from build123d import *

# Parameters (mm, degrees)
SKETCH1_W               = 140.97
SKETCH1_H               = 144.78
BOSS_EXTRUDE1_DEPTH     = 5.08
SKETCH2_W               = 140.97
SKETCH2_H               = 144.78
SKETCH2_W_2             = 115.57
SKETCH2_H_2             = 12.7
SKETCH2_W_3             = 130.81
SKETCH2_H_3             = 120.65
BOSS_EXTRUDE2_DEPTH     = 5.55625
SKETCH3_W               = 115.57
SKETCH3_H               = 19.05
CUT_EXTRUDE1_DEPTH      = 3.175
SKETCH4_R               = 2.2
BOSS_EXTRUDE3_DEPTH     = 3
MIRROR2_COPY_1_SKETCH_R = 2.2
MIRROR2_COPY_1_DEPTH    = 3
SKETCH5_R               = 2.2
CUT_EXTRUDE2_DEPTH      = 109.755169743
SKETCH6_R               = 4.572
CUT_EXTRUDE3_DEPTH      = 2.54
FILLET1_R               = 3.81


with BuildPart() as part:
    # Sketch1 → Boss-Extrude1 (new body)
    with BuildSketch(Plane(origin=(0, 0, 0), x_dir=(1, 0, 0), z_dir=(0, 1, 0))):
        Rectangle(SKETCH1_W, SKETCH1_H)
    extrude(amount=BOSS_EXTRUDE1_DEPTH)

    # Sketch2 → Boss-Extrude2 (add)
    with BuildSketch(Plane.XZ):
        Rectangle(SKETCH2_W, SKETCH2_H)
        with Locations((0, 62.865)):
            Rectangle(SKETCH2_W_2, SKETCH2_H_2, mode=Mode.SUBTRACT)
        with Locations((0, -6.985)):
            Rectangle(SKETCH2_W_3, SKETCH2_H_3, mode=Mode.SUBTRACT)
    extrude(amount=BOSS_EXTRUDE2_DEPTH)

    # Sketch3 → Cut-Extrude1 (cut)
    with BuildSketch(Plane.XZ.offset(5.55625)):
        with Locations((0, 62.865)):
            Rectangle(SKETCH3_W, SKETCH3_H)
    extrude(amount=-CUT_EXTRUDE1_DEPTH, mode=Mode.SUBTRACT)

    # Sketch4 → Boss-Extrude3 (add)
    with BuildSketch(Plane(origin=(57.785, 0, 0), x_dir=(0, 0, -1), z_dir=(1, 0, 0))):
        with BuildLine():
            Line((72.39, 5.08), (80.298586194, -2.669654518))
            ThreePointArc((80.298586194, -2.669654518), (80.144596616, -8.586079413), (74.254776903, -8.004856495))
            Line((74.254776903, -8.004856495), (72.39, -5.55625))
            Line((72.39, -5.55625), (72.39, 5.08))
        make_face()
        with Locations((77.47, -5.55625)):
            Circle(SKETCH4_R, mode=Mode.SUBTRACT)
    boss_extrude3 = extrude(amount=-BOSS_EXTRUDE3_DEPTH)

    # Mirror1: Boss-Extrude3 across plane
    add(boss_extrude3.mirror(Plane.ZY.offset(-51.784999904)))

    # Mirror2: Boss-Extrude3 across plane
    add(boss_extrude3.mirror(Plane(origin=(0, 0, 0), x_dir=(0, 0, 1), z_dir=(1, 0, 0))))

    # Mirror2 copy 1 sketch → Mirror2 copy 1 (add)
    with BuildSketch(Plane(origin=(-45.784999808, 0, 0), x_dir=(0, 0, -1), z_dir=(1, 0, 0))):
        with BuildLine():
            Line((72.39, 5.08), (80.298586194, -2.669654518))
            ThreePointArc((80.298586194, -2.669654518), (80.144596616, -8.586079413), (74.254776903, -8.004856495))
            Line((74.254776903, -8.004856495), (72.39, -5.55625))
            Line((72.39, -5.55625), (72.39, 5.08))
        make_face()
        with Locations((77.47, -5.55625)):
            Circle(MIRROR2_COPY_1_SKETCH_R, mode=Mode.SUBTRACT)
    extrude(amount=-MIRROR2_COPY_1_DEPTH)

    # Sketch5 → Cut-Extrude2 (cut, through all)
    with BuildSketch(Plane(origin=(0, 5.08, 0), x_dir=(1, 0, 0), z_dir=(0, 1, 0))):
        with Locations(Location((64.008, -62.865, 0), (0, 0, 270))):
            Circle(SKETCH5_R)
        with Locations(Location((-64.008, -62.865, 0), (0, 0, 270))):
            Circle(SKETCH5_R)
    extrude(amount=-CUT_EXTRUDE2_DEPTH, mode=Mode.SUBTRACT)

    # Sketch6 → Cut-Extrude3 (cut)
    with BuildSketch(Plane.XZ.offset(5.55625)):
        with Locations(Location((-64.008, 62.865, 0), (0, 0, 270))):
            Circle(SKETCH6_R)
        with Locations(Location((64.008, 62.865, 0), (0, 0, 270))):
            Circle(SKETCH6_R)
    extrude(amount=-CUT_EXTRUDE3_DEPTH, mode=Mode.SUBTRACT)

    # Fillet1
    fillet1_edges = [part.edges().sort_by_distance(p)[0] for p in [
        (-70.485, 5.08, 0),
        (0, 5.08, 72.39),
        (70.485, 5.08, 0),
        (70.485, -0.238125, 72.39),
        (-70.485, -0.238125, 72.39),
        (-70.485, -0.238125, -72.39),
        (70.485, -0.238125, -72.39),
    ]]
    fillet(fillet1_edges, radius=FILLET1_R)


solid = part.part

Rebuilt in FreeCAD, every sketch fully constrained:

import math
import FreeCAD as App
import Part
import Sketcher

V = App.Vector
Q = App.Units.Quantity


def edges_at(feature, points):
    """Names of the edges that pass closest to the given points."""
    edges = feature.Shape.Edges
    near = lambda p: min(range(len(edges)), key=lambda i: edges[i].distToShape(Part.Vertex(*p))[0])
    return sorted({f"Edge{near(p) + 1}" for p in points})


def add_polygon(sketch, points):
    """Adds a closed chain of lines whose ends are joined by coincident constraints."""
    first, n = sketch.GeometryCount, len(points)
    for a, b in zip(points, points[1:] + points[:1]):
        sketch.addGeometry(Part.LineSegment(App.Vector(*a, 0), App.Vector(*b, 0)), False)
    for i in range(n):
        sketch.addConstraint(Sketcher.Constraint("Coincident", first + i, 2, first + (i + 1) % n, 1))

doc = App.newDocument("Part")
body = doc.addObject("PartDesign::Body", "Body")

# Sketch on XZ plane
sketch1 = doc.addObject("Sketcher::SketchObject", "Sketch")
body.addObject(sketch1)
sketch1.AttachmentSupport = (doc.XZ_Plane, [""])
sketch1.MapMode = "FlatFace"
add_polygon(sketch1, [(-70.485, -72.39), (-70.485, 72.39), (70.485, 72.39), (70.485, -72.39)])  # lines 0-3
sketch1.addConstraint(Sketcher.Constraint("Vertical", 0))
sketch1.addConstraint(Sketcher.Constraint("Horizontal", 1))
sketch1.addConstraint(Sketcher.Constraint("Vertical", 2))
sketch1.addConstraint(Sketcher.Constraint("Horizontal", 3))
sketch1.addConstraint(Sketcher.Constraint("Symmetric", 0, 2, 2, 2, -1, 1))
sketch1.addConstraint(Sketcher.Constraint("DistanceY", 0, 1, 0, 2, Q("5.7 in")))
sketch1.addConstraint(Sketcher.Constraint("DistanceX", 1, 1, 1, 2, Q("5.55 in")))
pad1 = doc.addObject("PartDesign::Pad", "Pad")
body.addObject(pad1)
pad1.Profile = sketch1
pad1.Length = Q("0.2 in")
pad1.Reversed = True

# Sketch on XZ plane
sketch2 = doc.addObject("Sketcher::SketchObject", "Sketch001")
body.addObject(sketch2)
sketch2.AttachmentSupport = (doc.XZ_Plane, [""])
sketch2.MapMode = "FlatFace"
add_polygon(sketch2, [(-70.485, 72.39), (-70.485, -72.39), (70.485, -72.39), (70.485, 72.39)])  # lines 0-3
add_polygon(sketch2, [(65.405, -67.31), (-65.405, -67.31), (-65.405, 53.34), (65.405, 53.34)])  # lines 4-7
add_polygon(sketch2, [(57.785, 56.515), (-57.785, 56.515), (-57.785, 69.215), (57.785, 69.215)])  # lines 8-11
sketch2.addConstraint(Sketcher.Constraint("Vertical", 0))
sketch2.addConstraint(Sketcher.Constraint("Horizontal", 1))
sketch2.addConstraint(Sketcher.Constraint("Vertical", 2))
sketch2.addConstraint(Sketcher.Constraint("Horizontal", 3))
sketch2.addConstraint(Sketcher.Constraint("Horizontal", 4))
sketch2.addConstraint(Sketcher.Constraint("Vertical", 5))
sketch2.addConstraint(Sketcher.Constraint("Horizontal", 6))
sketch2.addConstraint(Sketcher.Constraint("Vertical", 7))
sketch2.addConstraint(Sketcher.Constraint("Horizontal", 8))
sketch2.addConstraint(Sketcher.Constraint("Vertical", 9))
sketch2.addConstraint(Sketcher.Constraint("Horizontal", 10))
sketch2.addConstraint(Sketcher.Constraint("Vertical", 11))
sketch2.addConstraint(Sketcher.Constraint("Symmetric", 0, 2, 2, 2, -1, 1))
sketch2.addConstraint(Sketcher.Constraint("DistanceY", 0, 2, 0, 1, Q("5.7 in")))
sketch2.addConstraint(Sketcher.Constraint("DistanceY", 9, 1, 9, 2, Q("0.5 in")))
sketch2.addConstraint(Sketcher.Constraint("DistanceX", 1, 1, 1, 2, Q("5.55 in")))
sketch2.addConstraint(Sketcher.Constraint("DistanceX", 4, 2, 4, 1, Q("5.15 in")))
sketch2.addConstraint(Sketcher.Constraint("DistanceX", 8, 2, 8, 1, Q("4.55 in")))
sketch2.addConstraint(Sketcher.Constraint("DistanceY", 5, 1, 5, 2, Q("4.75 in")))
sketch2.addConstraint(Sketcher.Constraint("DistanceY", -1, 1, 5, 2, Q("2.1 in")))
sketch2.addConstraint(Sketcher.Constraint("DistanceX", 0, 2, 4, 2, Q("0.2 in")))
sketch2.addConstraint(Sketcher.Constraint("DistanceX", 5, 2, 8, 2, Q("0.3 in")))
sketch2.addConstraint(Sketcher.Constraint("DistanceY", -1, 1, 8, 2, Q("2.225 in")))
pad2 = doc.addObject("PartDesign::Pad", "Pad001")
body.addObject(pad2)
pad2.Profile = sketch2
pad2.Length = Q("0.21875 in")

# Sketch on XZ plane
sketch3 = doc.addObject("Sketcher::SketchObject", "Sketch002")
body.addObject(sketch3)
sketch3.AttachmentSupport = (doc.XZ_Plane, [""])
sketch3.MapMode = "FlatFace"
sketch3.AttachmentOffset = App.Placement(V(0, 0, 0.21875 * 25.4), App.Rotation())
add_polygon(sketch3, [(-57.785, 72.39), (-57.785, 53.34), (57.785, 53.34), (57.785, 72.39)])  # lines 0-3
sketch3.addConstraint(Sketcher.Constraint("Vertical", 0))
sketch3.addConstraint(Sketcher.Constraint("Horizontal", 1))
sketch3.addConstraint(Sketcher.Constraint("Vertical", 2))
sketch3.addConstraint(Sketcher.Constraint("Horizontal", 3))
sketch3.addConstraint(Sketcher.Constraint("DistanceX", 1, 1, 1, 2, Q("4.55 in")))
sketch3.addConstraint(Sketcher.Constraint("DistanceY", 0, 2, 0, 1, Q("0.75 in")))
sketch3.addConstraint(Sketcher.Constraint("DistanceY", -1, 1, 0, 2, Q("2.1 in")))
sketch3.addConstraint(Sketcher.Constraint("DistanceX", 0, 2, -1, 1, Q("2.275 in")))
pocket1 = doc.addObject("PartDesign::Pocket", "Pocket")
body.addObject(pocket1)
pocket1.Profile = sketch3
pocket1.Length = Q("0.125 in")

# Sketch on YZ plane
sketch4 = doc.addObject("Sketcher::SketchObject", "Sketch003")
body.addObject(sketch4)
sketch4.AttachmentSupport = (doc.YZ_Plane, [""])
sketch4.MapMode = "FlatFace"
sketch4.AttachmentOffset = App.Placement(V(0, 0, 2.275 * 25.4), App.Rotation())
sketch4.addGeometry(Part.LineSegment(V(-2.669655, -80.298586, 0), V(5.08, -72.39, 0)), False)
sketch4.addGeometry(Part.LineSegment(V(5.08, -72.39, 0), V(-5.55625, -72.39, 0)), False)
sketch4.addGeometry(Part.LineSegment(V(-5.55625, -72.39, 0), V(-8.004856, -74.254777, 0)), False)
sketch4.addGeometry(Part.ArcOfCircle(Part.Circle(V(-5.55625, -77.47, 0), V(0, 0, 1), 4.041452), math.radians(127.291687), math.radians(315.581534)), False)
sketch4.addGeometry(Part.Circle(V(-5.55625, -77.47, 0), V(0, 0, 1), 2.2), False)
sketch4.addConstraint(Sketcher.Constraint("Coincident", 0, 2, 1, 1))
sketch4.addConstraint(Sketcher.Constraint("Coincident", 1, 2, 2, 1))
sketch4.addConstraint(Sketcher.Constraint("Tangent", 2, 2, 3, 1))
sketch4.addConstraint(Sketcher.Constraint("Tangent", 3, 2, 0, 1))
sketch4.addConstraint(Sketcher.Constraint("Horizontal", 1))
sketch4.addConstraint(Sketcher.Constraint("Coincident", 4, 3, 3, 3))
sketch4.addConstraint(Sketcher.Constraint("Vertical", 4, 3, 1, 2))
sketch4.addConstraint(Sketcher.Constraint("DistanceX", -1, 1, 0, 2, Q("0.2 in")))
sketch4.addConstraint(Sketcher.Constraint("DistanceY", 3, 3, 0, 2, Q("0.2 in")))
sketch4.addConstraint(Sketcher.Constraint("Diameter", 4, 4.4))
sketch4.addConstraint(Sketcher.Constraint("DistanceY", 3, 3, -1, 1, Q("3.05 in")))
sketch4.addConstraint(Sketcher.Constraint("DistanceX", 3, 3, -1, 1, Q("0.21875 in")))
sketch4.addConstraint(Sketcher.Constraint("Radius", 3, 4.041452))
pad3 = doc.addObject("PartDesign::Pad", "Pad002")
body.addObject(pad3)
pad3.Profile = sketch4
pad3.Length = 3
pad3.Reversed = True
doc.recompute()

datumplane = doc.addObject("PartDesign::Plane", "DatumPlane")
body.addObject(datumplane)
datumplane.AttachmentSupport = (doc.YZ_Plane, [""])
datumplane.MapMode = "FlatFace"
datumplane.AttachmentOffset = App.Placement(V(0, 0, 51.785), App.Rotation())
mirrored = doc.addObject("PartDesign::Mirrored", "Mirrored")
body.addObject(mirrored)
mirrored.Originals = [pad3]
mirrored.MirrorPlane = (datumplane, [""])
body.Tip = mirrored
doc.recompute()

mirrored2 = doc.addObject("PartDesign::Mirrored", "Mirrored001")
body.addObject(mirrored2)
mirrored2.Originals = [pad3]
mirrored2.MirrorPlane = (doc.YZ_Plane, [""])
body.Tip = mirrored2

# Sketch on YZ plane
sketch5 = doc.addObject("Sketcher::SketchObject", "Sketch004")
body.addObject(sketch5)
sketch5.AttachmentSupport = (doc.YZ_Plane, [""])
sketch5.MapMode = "FlatFace"
sketch5.AttachmentOffset = App.Placement(V(0, 0, -45.785), App.Rotation())
sketch5.addGeometry(Part.LineSegment(V(-2.669655, -80.298586, 0), V(5.08, -72.39, 0)), False)
sketch5.addGeometry(Part.LineSegment(V(5.08, -72.39, 0), V(-5.55625, -72.39, 0)), False)
sketch5.addGeometry(Part.LineSegment(V(-5.55625, -72.39, 0), V(-8.004856, -74.254777, 0)), False)
sketch5.addGeometry(Part.ArcOfCircle(Part.Circle(V(-5.55625, -77.47, 0), V(0, 0, 1), 4.041452), math.radians(127.291687), math.radians(315.581534)), False)
sketch5.addGeometry(Part.Circle(V(-5.55625, -77.47, 0), V(0, 0, 1), 2.2), False)
sketch5.addConstraint(Sketcher.Constraint("Coincident", 0, 2, 1, 1))
sketch5.addConstraint(Sketcher.Constraint("Coincident", 1, 2, 2, 1))
sketch5.addConstraint(Sketcher.Constraint("Tangent", 2, 2, 3, 1))
sketch5.addConstraint(Sketcher.Constraint("Tangent", 3, 2, 0, 1))
sketch5.addConstraint(Sketcher.Constraint("Horizontal", 1))
sketch5.addConstraint(Sketcher.Constraint("Coincident", 4, 3, 3, 3))
sketch5.addConstraint(Sketcher.Constraint("Vertical", 4, 3, 1, 2))
sketch5.addConstraint(Sketcher.Constraint("DistanceX", -1, 1, 0, 2, Q("0.2 in")))
sketch5.addConstraint(Sketcher.Constraint("DistanceY", 3, 3, 0, 2, Q("0.2 in")))
sketch5.addConstraint(Sketcher.Constraint("Diameter", 4, 4.4))
sketch5.addConstraint(Sketcher.Constraint("DistanceY", 3, 3, -1, 1, Q("3.05 in")))
sketch5.addConstraint(Sketcher.Constraint("DistanceX", 3, 3, -1, 1, Q("0.21875 in")))
sketch5.addConstraint(Sketcher.Constraint("Radius", 3, 4.041452))
pad4 = doc.addObject("PartDesign::Pad", "Pad003")
body.addObject(pad4)
pad4.Profile = sketch5
pad4.Length = 3
pad4.Reversed = True

# Sketch on XZ plane
sketch6 = doc.addObject("Sketcher::SketchObject", "Sketch005")
body.addObject(sketch6)
sketch6.AttachmentSupport = (doc.XZ_Plane, [""])
sketch6.MapMode = "FlatFace"
sketch6.AttachmentOffset = App.Placement(V(0, 0, -0.2 * 25.4), App.Rotation())
sketch6.addGeometry(Part.Circle(V(64.008, 62.865, 0), V(0, 0, 1), 2.2), False)
sketch6.addGeometry(Part.Circle(V(-64.008, 62.865, 0), V(0, 0, 1), 2.2), False)
sketch6.addConstraint(Sketcher.Constraint("Equal", 0, 1))
sketch6.addConstraint(Sketcher.Constraint("Symmetric", 0, 3, 1, 3, -2))
sketch6.addConstraint(Sketcher.Constraint("Diameter", 0, 4.4))
sketch6.addConstraint(Sketcher.Constraint("DistanceX", -1, 1, 0, 3, Q("2.52 in")))
sketch6.addConstraint(Sketcher.Constraint("DistanceY", -1, 1, 0, 3, Q("2.475 in")))
pocket2 = doc.addObject("PartDesign::Pocket", "Pocket001")
body.addObject(pocket2)
pocket2.Profile = sketch6
pocket2.Type = "ThroughAll"
pocket2.Reversed = True

# Sketch on XZ plane
sketch7 = doc.addObject("Sketcher::SketchObject", "Sketch006")
body.addObject(sketch7)
sketch7.AttachmentSupport = (doc.XZ_Plane, [""])
sketch7.MapMode = "FlatFace"
sketch7.AttachmentOffset = App.Placement(V(0, 0, 0.21875 * 25.4), App.Rotation())
sketch7.addGeometry(Part.Circle(V(-64.008, 62.865, 0), V(0, 0, 1), 4.572), False)
sketch7.addGeometry(Part.Circle(V(64.008, 62.865, 0), V(0, 0, 1), 4.572), False)
sketch7.addConstraint(Sketcher.Constraint("Equal", 0, 1))
sketch7.addConstraint(Sketcher.Constraint("Symmetric", 0, 3, 1, 3, -2))
sketch7.addConstraint(Sketcher.Constraint("Diameter", 0, Q("0.36 in")))
sketch7.addConstraint(Sketcher.Constraint("DistanceX", 0, 3, -1, 1, Q("2.52 in")))
sketch7.addConstraint(Sketcher.Constraint("DistanceY", -1, 1, 0, 3, Q("2.475 in")))
pocket3 = doc.addObject("PartDesign::Pocket", "Pocket002")
body.addObject(pocket3)
pocket3.Profile = sketch7
pocket3.Length = Q("0.1 in")
doc.recompute()

fillet = doc.addObject("PartDesign::Fillet", "Fillet")
body.addObject(fillet)
fillet.Base = (pocket3, edges_at(pocket3, [
    (-70.485, 5.08, 0),
    (0, 5.08, 72.39),
    (70.485, 5.08, 0),
    (70.485, -0.238, 72.39),
    (-70.485, -0.238, 72.39),
    (-70.485, -0.238, -72.39),
    (70.485, -0.238, -72.39),
]))
fillet.Radius = Q("0.15 in")

doc.recompute()
